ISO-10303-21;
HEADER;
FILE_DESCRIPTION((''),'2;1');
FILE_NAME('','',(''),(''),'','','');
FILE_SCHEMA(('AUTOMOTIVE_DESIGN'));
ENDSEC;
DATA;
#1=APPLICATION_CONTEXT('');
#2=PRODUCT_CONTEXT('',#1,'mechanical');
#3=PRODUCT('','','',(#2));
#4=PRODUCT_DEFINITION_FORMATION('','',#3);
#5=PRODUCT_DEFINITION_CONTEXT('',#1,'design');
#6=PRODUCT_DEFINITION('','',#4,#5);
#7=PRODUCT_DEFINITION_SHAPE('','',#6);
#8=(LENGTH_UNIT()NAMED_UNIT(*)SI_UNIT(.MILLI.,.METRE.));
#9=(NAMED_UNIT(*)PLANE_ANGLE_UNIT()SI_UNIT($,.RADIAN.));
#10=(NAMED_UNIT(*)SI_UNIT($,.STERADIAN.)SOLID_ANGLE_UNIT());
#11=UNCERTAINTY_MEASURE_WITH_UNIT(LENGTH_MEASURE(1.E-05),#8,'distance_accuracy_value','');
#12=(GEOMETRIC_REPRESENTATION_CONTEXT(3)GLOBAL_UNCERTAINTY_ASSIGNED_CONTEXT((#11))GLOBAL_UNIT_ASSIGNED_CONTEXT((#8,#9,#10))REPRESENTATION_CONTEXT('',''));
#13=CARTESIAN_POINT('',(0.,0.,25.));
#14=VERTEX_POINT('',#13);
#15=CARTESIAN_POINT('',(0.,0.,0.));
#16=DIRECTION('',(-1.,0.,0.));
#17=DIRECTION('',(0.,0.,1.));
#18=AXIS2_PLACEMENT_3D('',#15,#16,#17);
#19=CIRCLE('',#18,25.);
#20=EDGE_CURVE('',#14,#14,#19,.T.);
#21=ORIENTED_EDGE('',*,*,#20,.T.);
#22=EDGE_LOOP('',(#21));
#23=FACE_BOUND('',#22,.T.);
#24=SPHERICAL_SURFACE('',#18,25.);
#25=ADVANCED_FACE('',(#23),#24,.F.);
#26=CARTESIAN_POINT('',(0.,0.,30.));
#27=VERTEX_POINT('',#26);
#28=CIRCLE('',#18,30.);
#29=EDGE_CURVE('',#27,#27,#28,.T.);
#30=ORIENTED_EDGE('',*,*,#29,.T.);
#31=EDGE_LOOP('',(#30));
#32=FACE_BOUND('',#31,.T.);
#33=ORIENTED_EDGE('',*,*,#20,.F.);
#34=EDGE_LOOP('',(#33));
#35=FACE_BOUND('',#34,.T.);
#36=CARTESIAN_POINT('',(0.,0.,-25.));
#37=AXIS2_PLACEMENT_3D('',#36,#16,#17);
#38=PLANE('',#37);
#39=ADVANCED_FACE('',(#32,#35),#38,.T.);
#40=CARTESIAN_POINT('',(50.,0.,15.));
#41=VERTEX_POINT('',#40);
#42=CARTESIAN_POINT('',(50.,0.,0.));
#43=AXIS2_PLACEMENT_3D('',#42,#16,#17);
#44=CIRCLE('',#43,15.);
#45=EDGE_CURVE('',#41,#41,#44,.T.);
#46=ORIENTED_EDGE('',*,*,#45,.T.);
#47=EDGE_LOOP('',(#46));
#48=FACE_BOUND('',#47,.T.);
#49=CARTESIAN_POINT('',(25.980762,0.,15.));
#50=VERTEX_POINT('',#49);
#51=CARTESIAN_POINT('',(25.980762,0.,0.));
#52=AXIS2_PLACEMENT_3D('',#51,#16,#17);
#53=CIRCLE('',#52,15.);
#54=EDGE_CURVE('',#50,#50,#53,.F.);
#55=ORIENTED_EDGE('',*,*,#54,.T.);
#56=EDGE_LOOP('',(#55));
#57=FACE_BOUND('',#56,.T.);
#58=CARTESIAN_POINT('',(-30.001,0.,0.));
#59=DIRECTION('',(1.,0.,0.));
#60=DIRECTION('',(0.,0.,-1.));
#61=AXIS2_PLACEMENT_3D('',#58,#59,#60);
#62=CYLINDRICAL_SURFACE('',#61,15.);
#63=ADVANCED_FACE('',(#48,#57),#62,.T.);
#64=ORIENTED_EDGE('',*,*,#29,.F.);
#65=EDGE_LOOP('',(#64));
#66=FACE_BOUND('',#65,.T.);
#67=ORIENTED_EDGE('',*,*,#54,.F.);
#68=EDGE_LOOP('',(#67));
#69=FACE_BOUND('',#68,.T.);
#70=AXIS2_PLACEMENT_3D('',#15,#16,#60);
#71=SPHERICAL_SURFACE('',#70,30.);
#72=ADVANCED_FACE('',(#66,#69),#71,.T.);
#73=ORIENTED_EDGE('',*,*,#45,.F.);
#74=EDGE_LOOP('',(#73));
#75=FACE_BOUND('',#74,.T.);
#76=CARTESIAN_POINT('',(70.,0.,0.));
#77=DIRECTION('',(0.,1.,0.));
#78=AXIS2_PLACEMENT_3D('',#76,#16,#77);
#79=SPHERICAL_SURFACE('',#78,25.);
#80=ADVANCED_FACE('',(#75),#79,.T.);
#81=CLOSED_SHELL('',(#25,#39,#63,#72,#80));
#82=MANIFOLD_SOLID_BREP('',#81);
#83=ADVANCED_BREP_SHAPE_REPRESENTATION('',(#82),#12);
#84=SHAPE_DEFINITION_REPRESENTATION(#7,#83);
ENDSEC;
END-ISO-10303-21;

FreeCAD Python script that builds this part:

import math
import FreeCAD as App
import Part
import Sketcher
Q = App.Units.Quantity

doc = App.newDocument("Part")
body = doc.addObject("PartDesign::Body", "Body")
body.AllowCompound = True

# Sketch on XZ plane
sketch1 = body.newObject("Sketcher::SketchObject", "Sketch")
sketch1.AttachmentSupport = (doc.getObject("XZ_Plane"), [""])
sketch1.MapMode = "FlatFace"
sketch1.addGeometry([
    Part.ArcOfCircle(Part.Circle(App.Vector(0, 0, 0), App.Vector(0, 0, 1), 25), math.radians(-90), math.radians(0)),
    Part.LineSegment(App.Vector(25, 0, 0), App.Vector(30, 0, 0)),
    Part.ArcOfCircle(Part.Circle(App.Vector(0, 0, 0), App.Vector(0, 0, 1), 30), math.radians(-90), math.radians(0)),
    Part.LineSegment(App.Vector(0, -30, 0), App.Vector(0, -25, 0)),
], False)
sketch1.addConstraint([
    Sketcher.Constraint("Coincident", 0, 2, 1, 1),
    Sketcher.Constraint("Coincident", 1, 2, 2, 2),
    Sketcher.Constraint("Coincident", 2, 1, 3, 1),
    Sketcher.Constraint("Coincident", 3, 2, 0, 1),
    Sketcher.Constraint("Horizontal", 1),
    Sketcher.Constraint("Vertical", 3),
    Sketcher.Constraint("Coincident", 0, 3, -1, 1),
    Sketcher.Constraint("Coincident", 2, 3, -1, 1),
    Sketcher.Constraint("PointOnObject", 0, 2, -1),
    Sketcher.Constraint("PointOnObject", 2, 1, -2),
    Sketcher.Constraint("Radius", 0, Q("25 mm")),
    Sketcher.Constraint("Radius", 2, Q("30 mm")),
])
revolution = body.newObject("PartDesign::Revolution", "Revolution")
revolution.Profile = sketch1
revolution.ReferenceAxis = (sketch1, ["H_Axis"])
revolution.Angle = 360

# Sketch on YZ plane
sketch2 = body.newObject("Sketcher::SketchObject", "Sketch001")
sketch2.AttachmentSupport = (doc.getObject("YZ_Plane"), [""])
sketch2.MapMode = "FlatFace"
sketch2.AttachmentOffset = App.Placement(App.Vector(0, 0, 40), App.Rotation())
sketch2.addGeometry(Part.Circle(App.Vector(0, 0, 0), App.Vector(0, 0, 1), 15), False)
sketch2.addConstraint([
    Sketcher.Constraint("Coincident", 0, 3, -1, 1),
    Sketcher.Constraint("Diameter", 0, Q("30 mm")),
])
pad1 = body.newObject("PartDesign::Pad", "Pad")
pad1.Profile = sketch2
pad1.Length = 10

# Sketch on YZ plane
sketch3 = body.newObject("Sketcher::SketchObject", "Sketch002")
sketch3.AttachmentSupport = (doc.getObject("YZ_Plane"), [""])
sketch3.MapMode = "FlatFace"
sketch3.AttachmentOffset = App.Placement(App.Vector(0, 0, 40), App.Rotation())
sketch3.addGeometry(Part.Circle(App.Vector(0, 0, 0), App.Vector(0, 0, 1), 15), False)
sketch3.addConstraint([
    Sketcher.Constraint("Coincident", 0, 3, -1, 1),
    Sketcher.Constraint("Diameter", 0, Q("30 mm")),
])
pad2 = body.newObject("PartDesign::Pad", "Pad001")
pad2.Profile = sketch3
pad2.Type = "UpToFirst"
pad2.Reversed = True

# Sketch on XY plane
sketch4 = body.newObject("Sketcher::SketchObject", "Sketch003")
sketch4.AttachmentSupport = (doc.getObject("XY_Plane"), [""])
sketch4.MapMode = "FlatFace"
sketch4.addGeometry([
    Part.LineSegment(App.Vector(50, 15, 0), App.Vector(50, 0, 0)),
    Part.LineSegment(App.Vector(50, 0, 0), App.Vector(95, 0, 0)),
    Part.ArcOfCircle(Part.Circle(App.Vector(70, 0, 0), App.Vector(0, 0, 1), 25), math.radians(0), math.radians(143.130102)),
], False)
sketch4.addConstraint([
    Sketcher.Constraint("Coincident", 0, 2, 1, 1),
    Sketcher.Constraint("Coincident", 1, 2, 2, 1),
    Sketcher.Constraint("Coincident", 2, 2, 0, 1),
    Sketcher.Constraint("Vertical", 0),
    Sketcher.Constraint("Horizontal", 1),
    Sketcher.Constraint("PointOnObject", 2, 3, -1),
    Sketcher.Constraint("PointOnObject", 0, 2, -1),
    Sketcher.Constraint("Radius", 2, Q("25 mm")),
    Sketcher.Constraint("DistanceX", 1, 1, 1, 2, Q("45 mm")),
    Sketcher.Constraint("DistanceX", -1, 1, 2, 3, Q("70 mm")),
])
revolution2 = body.newObject("PartDesign::Revolution", "Revolution001")
revolution2.Profile = sketch4
revolution2.ReferenceAxis = (sketch4, ["H_Axis"])
revolution2.Angle = 360

doc.recompute()
